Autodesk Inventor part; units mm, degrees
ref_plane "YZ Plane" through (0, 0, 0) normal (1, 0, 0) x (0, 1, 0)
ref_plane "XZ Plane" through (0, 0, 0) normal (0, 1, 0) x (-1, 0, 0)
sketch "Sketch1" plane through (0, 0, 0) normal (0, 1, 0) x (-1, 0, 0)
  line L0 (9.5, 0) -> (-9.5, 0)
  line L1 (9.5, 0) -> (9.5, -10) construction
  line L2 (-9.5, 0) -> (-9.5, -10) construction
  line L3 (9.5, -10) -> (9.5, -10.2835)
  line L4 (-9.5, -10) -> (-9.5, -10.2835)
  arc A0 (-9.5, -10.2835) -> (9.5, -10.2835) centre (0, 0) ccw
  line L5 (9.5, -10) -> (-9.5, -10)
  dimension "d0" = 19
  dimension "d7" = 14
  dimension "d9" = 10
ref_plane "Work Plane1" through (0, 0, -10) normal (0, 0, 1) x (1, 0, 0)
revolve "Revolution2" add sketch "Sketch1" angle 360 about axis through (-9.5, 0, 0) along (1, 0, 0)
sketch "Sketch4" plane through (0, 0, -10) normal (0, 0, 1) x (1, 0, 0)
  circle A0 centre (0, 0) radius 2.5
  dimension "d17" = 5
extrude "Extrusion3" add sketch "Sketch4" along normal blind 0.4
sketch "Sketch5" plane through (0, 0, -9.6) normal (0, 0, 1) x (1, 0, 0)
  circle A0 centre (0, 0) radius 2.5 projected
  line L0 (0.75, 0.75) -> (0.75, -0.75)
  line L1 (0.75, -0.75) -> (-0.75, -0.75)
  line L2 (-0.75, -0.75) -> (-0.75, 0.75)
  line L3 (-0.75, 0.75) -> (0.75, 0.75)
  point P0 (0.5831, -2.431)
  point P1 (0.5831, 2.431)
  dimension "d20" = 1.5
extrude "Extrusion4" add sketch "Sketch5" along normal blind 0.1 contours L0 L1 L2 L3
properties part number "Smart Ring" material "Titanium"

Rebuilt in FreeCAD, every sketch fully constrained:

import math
import FreeCAD as App
import Part
import Sketcher

V = App.Vector

doc = App.newDocument("Part")
body = doc.addObject("PartDesign::Body", "Body")

sketch1 = doc.addObject("Sketcher::SketchObject", "Sketch")
body.addObject(sketch1)
sketch1.AttachmentSupport = (doc.XZ_Plane, [""])
sketch1.MapMode = "FlatFace"
sketch1.addGeometry([
    Part.LineSegment(V(-9.5, -10.28, 0), V(-9.5, -10, 0)),
    Part.LineSegment(V(-9.5, -10, 0), V(9.5, -10, 0)),
    Part.LineSegment(V(9.5, -10, 0), V(9.5, -10.28, 0)),
    Part.ArcOfCircle(Part.Circle(V(0, 0, 0), V(0, 0, 1), 14), math.radians(-133), math.radians(-47)),
], False)
sketch1.addConstraint([
    Sketcher.Constraint("Coincident", 0, 2, 1, 1),
    Sketcher.Constraint("Coincident", 1, 2, 2, 1),
    Sketcher.Constraint("Coincident", 2, 2, 3, 2),
    Sketcher.Constraint("Coincident", 3, 1, 0, 1),
    Sketcher.Constraint("Vertical", 0),
    Sketcher.Constraint("Horizontal", 1),
    Sketcher.Constraint("Vertical", 2),
    Sketcher.Constraint("Coincident", 3, 3, -1, 1),
    Sketcher.Constraint("Horizontal", 2, 2, 3, 1),
    Sketcher.Constraint("Radius", 3, 14.0),
    Sketcher.Constraint("DistanceX", 1, 1, 1, 2, 19.0),
    Sketcher.Constraint("DistanceY", 0, 2, -1, 1, 10.0),
])
revolution = doc.addObject("PartDesign::Revolution", "Revolution")
body.addObject(revolution)
revolution.Profile = sketch1
revolution.ReferenceAxis = (sketch1, ["H_Axis"])
revolution.Angle = 360

sketch2 = doc.addObject("Sketcher::SketchObject", "Sketch001")
body.addObject(sketch2)
sketch2.AttachmentSupport = (doc.XY_Plane, [""])
sketch2.MapMode = "FlatFace"
sketch2.AttachmentOffset = App.Placement(V(0, 0, -10), App.Rotation())
sketch2.addGeometry(Part.Circle(V(0, 0, 0), V(0, 0, 1), 2.5), False)
sketch2.addConstraint([
    Sketcher.Constraint("Coincident", 0, 3, -1, 1),
    Sketcher.Constraint("Diameter", 0, 5.0),
])
pad1 = doc.addObject("PartDesign::Pad", "Pad")
body.addObject(pad1)
pad1.Profile = sketch2
pad1.Length = 0.4

sketch3 = doc.addObject("Sketcher::SketchObject", "Sketch002")
body.addObject(sketch3)
sketch3.AttachmentSupport = (doc.XY_Plane, [""])
sketch3.MapMode = "FlatFace"
sketch3.AttachmentOffset = App.Placement(V(0, 0, -9.6), App.Rotation())
sketch3.addGeometry([
    Part.LineSegment(V(0.8, -0.8, 0), V(0.8, 0.8, 0)),
    Part.LineSegment(V(0.8, 0.8, 0), V(-0.8, 0.8, 0)),
    Part.LineSegment(V(-0.8, 0.8, 0), V(-0.8, -0.8, 0)),
    Part.LineSegment(V(-0.8, -0.8, 0), V(0.8, -0.8, 0)),
], False)
sketch3.addConstraint([
    Sketcher.Constraint("Coincident", 0, 2, 1, 1),
    Sketcher.Constraint("Coincident", 1, 2, 2, 1),
    Sketcher.Constraint("Coincident", 2, 2, 3, 1),
    Sketcher.Constraint("Coincident", 3, 2, 0, 1),
    Sketcher.Constraint("Vertical", 0),
    Sketcher.Constraint("Horizontal", 1),
    Sketcher.Constraint("Vertical", 2),
    Sketcher.Constraint("Horizontal", 3),
    Sketcher.Constraint("Symmetric", 0, 2, 2, 2, -1, 1),
    Sketcher.Constraint("Equal", 3, 0),
    Sketcher.Constraint("DistanceX", 1, 2, 1, 1, 1.5),
])
pad2 = doc.addObject("PartDesign::Pad", "Pad001")
body.addObject(pad2)
pad2.Profile = sketch3
pad2.Length = 0.1

doc.recompute()
